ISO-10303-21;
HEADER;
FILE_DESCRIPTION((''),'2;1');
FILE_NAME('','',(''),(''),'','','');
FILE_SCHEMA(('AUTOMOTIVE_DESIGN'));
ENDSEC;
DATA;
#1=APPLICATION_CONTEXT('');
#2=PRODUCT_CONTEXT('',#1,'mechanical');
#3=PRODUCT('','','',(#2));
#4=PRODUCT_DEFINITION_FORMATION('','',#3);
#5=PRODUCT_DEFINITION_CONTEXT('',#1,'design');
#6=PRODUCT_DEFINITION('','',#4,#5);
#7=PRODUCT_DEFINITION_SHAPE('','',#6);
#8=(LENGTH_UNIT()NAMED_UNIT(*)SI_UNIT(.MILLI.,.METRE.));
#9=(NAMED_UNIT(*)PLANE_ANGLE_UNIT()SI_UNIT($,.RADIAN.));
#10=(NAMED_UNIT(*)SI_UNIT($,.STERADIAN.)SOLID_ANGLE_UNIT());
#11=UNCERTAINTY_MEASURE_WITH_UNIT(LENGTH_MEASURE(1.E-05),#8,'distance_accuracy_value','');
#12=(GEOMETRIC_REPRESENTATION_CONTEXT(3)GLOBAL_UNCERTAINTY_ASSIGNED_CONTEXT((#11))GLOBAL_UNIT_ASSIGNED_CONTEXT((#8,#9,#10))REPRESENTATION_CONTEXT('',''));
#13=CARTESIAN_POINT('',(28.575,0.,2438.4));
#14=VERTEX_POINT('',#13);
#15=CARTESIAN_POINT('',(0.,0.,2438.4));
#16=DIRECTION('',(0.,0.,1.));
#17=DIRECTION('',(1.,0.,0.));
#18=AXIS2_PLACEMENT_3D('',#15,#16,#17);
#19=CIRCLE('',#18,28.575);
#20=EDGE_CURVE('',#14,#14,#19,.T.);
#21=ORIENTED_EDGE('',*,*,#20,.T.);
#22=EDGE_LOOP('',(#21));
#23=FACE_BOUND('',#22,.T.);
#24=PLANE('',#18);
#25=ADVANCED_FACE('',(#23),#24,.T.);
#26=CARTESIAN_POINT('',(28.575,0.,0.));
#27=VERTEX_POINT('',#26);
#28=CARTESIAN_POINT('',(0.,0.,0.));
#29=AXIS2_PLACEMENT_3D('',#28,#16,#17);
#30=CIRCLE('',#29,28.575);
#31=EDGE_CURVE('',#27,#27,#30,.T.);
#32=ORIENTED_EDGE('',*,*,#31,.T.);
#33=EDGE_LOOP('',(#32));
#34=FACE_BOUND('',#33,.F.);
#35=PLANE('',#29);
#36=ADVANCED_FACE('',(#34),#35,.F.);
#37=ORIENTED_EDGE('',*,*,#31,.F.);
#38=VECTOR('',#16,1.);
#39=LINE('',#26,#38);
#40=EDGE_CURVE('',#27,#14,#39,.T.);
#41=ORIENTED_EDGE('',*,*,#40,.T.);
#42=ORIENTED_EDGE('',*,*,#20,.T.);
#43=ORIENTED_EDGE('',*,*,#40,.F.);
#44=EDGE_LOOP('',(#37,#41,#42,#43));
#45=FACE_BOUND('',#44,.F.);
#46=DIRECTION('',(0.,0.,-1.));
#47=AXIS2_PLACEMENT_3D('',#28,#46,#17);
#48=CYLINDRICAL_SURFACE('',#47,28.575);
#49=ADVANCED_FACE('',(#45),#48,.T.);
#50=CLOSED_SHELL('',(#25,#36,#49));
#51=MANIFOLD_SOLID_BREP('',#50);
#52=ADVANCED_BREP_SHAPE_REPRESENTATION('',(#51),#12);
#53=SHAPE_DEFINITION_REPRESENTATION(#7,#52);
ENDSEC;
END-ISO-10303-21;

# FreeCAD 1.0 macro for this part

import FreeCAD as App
import Part
import Sketcher
Q = App.Units.Quantity

doc = App.newDocument("Part")
body = doc.addObject("PartDesign::Body", "Body")

sketch1 = doc.addObject("Sketcher::SketchObject", "Sketch")
body.addObject(sketch1)
sketch1.AttachmentSupport = (doc.XY_Plane, [""])
sketch1.MapMode = "FlatFace"
sketch1.addGeometry(Part.Circle(App.Vector(0, 0, 0), App.Vector(0, 0, 1), 29), False)
sketch1.addConstraint([
    Sketcher.Constraint("Coincident", 0, 3, -1, 1),
    Sketcher.Constraint("Diameter", 0, Q("2.25 in")),
])
pad1 = doc.addObject("PartDesign::Pad", "Pad")
body.addObject(pad1)
pad1.Profile = sketch1
pad1.Length = Q("96 in")

doc.recompute()
